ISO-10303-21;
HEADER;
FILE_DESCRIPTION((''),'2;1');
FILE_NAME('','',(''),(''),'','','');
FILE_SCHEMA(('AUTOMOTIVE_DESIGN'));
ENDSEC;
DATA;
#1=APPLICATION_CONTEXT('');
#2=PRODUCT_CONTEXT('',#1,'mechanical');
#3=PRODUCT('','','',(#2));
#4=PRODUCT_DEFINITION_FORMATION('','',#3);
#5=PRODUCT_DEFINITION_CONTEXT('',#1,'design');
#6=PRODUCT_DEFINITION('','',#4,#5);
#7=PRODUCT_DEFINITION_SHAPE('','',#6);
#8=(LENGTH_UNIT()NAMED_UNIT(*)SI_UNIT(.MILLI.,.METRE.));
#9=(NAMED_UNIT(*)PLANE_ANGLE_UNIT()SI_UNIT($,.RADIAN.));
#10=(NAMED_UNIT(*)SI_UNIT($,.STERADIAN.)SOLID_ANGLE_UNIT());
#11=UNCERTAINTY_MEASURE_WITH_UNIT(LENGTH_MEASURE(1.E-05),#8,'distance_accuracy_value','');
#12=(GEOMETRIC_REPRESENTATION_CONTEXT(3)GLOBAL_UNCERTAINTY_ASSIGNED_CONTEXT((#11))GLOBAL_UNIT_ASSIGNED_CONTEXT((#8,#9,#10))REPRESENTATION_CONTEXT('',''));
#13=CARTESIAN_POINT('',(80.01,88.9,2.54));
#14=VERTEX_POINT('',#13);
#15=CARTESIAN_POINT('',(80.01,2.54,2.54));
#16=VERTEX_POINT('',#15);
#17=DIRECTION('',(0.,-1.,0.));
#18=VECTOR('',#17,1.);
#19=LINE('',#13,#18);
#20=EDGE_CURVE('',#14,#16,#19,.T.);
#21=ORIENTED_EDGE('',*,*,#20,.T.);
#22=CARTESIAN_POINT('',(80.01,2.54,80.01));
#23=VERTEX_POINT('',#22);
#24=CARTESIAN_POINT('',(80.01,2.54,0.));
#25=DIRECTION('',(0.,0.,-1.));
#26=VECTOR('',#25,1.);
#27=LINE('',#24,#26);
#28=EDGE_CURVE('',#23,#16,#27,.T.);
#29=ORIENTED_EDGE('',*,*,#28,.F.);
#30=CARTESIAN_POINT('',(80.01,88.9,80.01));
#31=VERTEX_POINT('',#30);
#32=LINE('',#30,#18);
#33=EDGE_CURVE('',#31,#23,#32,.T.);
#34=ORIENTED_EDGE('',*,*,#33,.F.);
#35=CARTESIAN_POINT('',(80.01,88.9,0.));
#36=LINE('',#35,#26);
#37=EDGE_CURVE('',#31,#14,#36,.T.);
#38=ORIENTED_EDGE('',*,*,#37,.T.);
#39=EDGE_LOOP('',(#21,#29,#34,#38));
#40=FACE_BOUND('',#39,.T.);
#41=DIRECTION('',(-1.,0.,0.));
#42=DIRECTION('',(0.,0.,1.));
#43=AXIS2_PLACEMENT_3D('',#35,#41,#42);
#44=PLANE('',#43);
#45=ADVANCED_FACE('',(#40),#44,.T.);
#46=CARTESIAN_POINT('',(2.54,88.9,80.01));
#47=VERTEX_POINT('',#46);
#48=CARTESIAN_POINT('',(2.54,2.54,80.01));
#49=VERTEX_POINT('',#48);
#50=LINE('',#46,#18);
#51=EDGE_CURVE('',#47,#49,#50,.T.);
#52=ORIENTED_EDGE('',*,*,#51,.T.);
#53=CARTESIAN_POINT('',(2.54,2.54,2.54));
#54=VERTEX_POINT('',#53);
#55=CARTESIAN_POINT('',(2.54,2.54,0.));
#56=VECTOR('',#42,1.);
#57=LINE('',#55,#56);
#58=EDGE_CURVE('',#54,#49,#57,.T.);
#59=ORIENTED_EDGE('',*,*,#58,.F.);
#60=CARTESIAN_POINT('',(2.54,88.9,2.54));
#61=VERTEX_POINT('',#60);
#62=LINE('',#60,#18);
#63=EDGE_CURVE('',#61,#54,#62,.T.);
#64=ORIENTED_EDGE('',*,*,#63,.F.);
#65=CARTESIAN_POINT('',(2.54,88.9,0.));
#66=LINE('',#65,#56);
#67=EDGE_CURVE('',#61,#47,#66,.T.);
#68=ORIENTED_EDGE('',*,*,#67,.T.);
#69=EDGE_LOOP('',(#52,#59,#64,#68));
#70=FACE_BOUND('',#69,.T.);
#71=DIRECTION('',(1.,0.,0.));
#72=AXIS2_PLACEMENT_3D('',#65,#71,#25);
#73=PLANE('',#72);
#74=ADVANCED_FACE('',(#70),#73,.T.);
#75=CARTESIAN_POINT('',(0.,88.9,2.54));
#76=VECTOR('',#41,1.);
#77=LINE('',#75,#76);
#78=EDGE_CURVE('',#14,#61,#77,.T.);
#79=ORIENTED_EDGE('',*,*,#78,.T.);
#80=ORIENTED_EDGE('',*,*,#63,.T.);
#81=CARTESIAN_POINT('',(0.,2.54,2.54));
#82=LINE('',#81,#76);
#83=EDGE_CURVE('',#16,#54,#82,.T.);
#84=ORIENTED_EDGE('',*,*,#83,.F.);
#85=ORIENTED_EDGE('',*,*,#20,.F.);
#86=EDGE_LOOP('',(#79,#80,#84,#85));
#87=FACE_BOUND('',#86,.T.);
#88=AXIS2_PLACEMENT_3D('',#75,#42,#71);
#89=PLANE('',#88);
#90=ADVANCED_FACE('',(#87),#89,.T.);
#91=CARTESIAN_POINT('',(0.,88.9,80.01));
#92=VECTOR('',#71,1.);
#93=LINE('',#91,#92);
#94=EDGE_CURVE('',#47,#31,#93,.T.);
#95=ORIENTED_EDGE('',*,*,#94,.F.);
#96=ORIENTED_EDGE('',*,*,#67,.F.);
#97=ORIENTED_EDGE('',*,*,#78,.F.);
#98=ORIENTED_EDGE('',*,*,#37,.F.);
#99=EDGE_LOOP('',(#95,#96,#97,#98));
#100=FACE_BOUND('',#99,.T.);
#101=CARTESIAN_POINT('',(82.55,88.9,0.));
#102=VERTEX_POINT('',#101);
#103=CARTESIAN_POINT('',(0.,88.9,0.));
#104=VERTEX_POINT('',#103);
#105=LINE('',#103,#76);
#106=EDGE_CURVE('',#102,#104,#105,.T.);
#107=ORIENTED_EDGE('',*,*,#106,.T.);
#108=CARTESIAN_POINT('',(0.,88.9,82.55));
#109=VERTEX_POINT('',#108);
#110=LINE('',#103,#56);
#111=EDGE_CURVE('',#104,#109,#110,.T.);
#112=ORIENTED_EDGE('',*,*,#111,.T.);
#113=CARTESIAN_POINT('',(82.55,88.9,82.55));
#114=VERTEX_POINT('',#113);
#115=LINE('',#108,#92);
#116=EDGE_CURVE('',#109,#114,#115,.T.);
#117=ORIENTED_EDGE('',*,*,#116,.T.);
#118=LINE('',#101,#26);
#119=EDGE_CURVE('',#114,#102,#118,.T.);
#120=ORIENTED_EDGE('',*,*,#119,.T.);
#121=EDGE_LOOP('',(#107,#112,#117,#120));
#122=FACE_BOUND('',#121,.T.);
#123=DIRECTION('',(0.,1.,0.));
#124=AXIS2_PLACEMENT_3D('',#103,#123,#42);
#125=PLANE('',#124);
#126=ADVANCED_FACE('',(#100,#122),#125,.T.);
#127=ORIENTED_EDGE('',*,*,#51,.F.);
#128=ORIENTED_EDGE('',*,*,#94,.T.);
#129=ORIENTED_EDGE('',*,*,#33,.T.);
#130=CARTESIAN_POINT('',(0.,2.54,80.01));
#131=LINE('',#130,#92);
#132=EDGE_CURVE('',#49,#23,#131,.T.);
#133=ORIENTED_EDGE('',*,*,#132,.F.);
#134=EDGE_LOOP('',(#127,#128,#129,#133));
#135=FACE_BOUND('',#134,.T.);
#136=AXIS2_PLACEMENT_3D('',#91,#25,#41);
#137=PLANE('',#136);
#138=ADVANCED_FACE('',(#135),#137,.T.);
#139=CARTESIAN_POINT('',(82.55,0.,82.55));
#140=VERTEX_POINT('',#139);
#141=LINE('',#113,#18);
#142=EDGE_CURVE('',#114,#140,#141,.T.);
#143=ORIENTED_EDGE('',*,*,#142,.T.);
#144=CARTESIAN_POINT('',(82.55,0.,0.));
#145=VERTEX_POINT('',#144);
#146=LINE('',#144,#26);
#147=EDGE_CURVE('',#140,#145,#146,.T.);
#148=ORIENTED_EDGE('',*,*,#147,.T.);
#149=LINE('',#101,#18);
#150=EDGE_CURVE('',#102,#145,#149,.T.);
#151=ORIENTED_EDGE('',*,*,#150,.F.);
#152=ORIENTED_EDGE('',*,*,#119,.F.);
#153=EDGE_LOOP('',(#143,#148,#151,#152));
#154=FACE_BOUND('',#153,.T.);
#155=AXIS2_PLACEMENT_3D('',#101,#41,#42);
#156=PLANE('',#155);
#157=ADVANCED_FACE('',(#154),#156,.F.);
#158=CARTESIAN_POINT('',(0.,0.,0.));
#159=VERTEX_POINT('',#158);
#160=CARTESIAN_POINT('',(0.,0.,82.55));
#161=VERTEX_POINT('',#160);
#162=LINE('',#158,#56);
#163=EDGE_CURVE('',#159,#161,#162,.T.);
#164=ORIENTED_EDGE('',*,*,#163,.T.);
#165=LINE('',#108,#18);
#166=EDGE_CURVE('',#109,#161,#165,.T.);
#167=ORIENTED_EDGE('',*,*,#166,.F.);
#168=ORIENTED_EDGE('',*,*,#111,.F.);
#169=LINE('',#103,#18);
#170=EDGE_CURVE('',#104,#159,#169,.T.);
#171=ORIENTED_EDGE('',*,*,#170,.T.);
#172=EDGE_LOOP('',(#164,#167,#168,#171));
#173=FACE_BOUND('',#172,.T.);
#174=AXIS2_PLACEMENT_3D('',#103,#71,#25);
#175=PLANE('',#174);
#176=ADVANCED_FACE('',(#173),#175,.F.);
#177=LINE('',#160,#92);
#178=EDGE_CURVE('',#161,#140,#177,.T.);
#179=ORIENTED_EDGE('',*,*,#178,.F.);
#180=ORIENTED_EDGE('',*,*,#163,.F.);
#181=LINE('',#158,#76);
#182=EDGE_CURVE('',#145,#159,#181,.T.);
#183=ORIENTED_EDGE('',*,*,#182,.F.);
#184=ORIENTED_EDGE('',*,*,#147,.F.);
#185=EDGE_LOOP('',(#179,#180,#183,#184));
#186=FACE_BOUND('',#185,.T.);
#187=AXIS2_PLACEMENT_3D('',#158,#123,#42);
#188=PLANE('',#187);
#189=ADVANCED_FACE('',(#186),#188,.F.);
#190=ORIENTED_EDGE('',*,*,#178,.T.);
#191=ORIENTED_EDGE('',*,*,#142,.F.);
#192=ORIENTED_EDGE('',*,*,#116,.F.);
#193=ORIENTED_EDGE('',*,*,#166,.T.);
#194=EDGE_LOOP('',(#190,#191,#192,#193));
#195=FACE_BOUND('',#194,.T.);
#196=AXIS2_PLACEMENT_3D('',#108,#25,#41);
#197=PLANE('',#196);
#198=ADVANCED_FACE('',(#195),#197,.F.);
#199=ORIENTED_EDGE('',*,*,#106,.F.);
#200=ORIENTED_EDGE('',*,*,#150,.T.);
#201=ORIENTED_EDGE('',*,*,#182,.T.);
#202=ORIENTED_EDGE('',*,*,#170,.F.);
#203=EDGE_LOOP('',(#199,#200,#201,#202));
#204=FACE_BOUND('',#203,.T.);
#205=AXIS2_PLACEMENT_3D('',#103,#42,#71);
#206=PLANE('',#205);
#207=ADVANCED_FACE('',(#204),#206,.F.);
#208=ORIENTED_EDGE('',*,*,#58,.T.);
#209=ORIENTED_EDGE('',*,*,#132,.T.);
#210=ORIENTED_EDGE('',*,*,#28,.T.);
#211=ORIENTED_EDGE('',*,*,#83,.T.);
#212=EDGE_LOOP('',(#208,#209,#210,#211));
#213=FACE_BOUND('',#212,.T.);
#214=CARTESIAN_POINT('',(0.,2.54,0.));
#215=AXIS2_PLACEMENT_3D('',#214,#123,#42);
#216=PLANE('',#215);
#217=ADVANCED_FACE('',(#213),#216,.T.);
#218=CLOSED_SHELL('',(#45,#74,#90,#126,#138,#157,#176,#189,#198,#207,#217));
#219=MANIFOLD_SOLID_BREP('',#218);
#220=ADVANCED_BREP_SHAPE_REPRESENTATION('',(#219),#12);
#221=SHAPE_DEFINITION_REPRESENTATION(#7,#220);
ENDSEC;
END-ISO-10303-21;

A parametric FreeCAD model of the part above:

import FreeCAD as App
import Part
import Sketcher

V = App.Vector
Q = App.Units.Quantity


def faces_at(feature, points):
    """Names of the faces that lie closest to the given points."""
    faces = feature.Shape.Faces
    near = lambda p: min(range(len(faces)), key=lambda i: faces[i].distToShape(Part.Vertex(*p))[0])
    return sorted({f"Face{near(p) + 1}" for p in points})

doc = App.newDocument("Part")
body = doc.addObject("PartDesign::Body", "Body")

sketch1 = body.newObject("Sketcher::SketchObject", "Sketch")
sketch1.AttachmentSupport = (doc.getObject("XZ_Plane"), [""])
sketch1.MapMode = "FlatFace"
sketch1.addGeometry(Part.LineSegment(V(0, 0, 0), V(0, 83, 0)), False)
sketch1.addGeometry(Part.LineSegment(V(0, 83, 0), V(83, 83, 0)), False)
sketch1.addGeometry(Part.LineSegment(V(83, 83, 0), V(83, 0, 0)), False)
sketch1.addGeometry(Part.LineSegment(V(83, 0, 0), V(0, 0, 0)), False)
sketch1.addConstraint(Sketcher.Constraint("Coincident", 0, 2, 1, 1))
sketch1.addConstraint(Sketcher.Constraint("Coincident", 1, 2, 2, 1))
sketch1.addConstraint(Sketcher.Constraint("Coincident", 2, 2, 3, 1))
sketch1.addConstraint(Sketcher.Constraint("Coincident", 3, 2, 0, 1))
sketch1.addConstraint(Sketcher.Constraint("Vertical", 0))
sketch1.addConstraint(Sketcher.Constraint("Horizontal", 1))
sketch1.addConstraint(Sketcher.Constraint("Vertical", 2))
sketch1.addConstraint(Sketcher.Constraint("Horizontal", 3))
sketch1.addConstraint(Sketcher.Constraint("Coincident", 3, 2, -1, 1))
sketch1.addConstraint(Sketcher.Constraint("Equal", 3, 0))
sketch1.addConstraint(Sketcher.Constraint("DistanceX", 1, 1, 1, 2, Q("3.25 in")))
pad1 = body.newObject("PartDesign::Pad", "Pad")
pad1.Profile = sketch1
pad1.Length = Q("3.5 in")
pad1.Reversed = True
doc.recompute()

thickness = body.newObject("PartDesign::Thickness", "Thickness")
thickness.Base = (pad1, faces_at(pad1, [(41.275, 88.9, 41.275)]))
thickness.Value = Q("0.1 in")
thickness.Reversed = True
thickness.Join = "Intersection"

doc.recompute()
